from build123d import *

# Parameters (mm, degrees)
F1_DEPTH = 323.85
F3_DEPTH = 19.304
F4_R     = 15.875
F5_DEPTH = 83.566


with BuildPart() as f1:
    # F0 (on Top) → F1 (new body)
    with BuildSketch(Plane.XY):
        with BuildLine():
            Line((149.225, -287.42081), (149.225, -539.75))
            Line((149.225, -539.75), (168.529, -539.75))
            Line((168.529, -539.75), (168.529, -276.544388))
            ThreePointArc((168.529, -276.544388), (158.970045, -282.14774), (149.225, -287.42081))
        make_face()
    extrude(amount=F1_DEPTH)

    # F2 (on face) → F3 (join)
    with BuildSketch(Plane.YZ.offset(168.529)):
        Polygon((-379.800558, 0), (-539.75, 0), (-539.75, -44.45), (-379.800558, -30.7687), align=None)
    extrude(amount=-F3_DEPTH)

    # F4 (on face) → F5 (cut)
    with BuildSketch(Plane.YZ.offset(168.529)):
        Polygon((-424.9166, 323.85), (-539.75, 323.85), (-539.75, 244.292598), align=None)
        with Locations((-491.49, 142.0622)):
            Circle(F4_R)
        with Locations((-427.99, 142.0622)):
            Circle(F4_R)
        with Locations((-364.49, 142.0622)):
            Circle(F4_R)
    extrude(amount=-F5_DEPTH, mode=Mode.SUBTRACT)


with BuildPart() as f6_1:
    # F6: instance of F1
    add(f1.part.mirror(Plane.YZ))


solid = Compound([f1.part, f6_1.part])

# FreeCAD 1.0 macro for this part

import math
import FreeCAD as App
import Part
import Sketcher
Q = App.Units.Quantity

doc = App.newDocument("Part")
body = doc.addObject("PartDesign::Body", "Body")

# Sketch on XY plane
sketch1 = body.newObject("Sketcher::SketchObject", "Sketch")
sketch1.AttachmentSupport = (doc.getObject("XY_Plane"), [""])
sketch1.MapMode = "FlatFace"
sketch1.addGeometry(Part.LineSegment(App.Vector(149, -287, 0), App.Vector(149, -540, 0)), False)
sketch1.addGeometry(Part.LineSegment(App.Vector(149, -540, 0), App.Vector(169, -540, 0)), False)
sketch1.addGeometry(Part.LineSegment(App.Vector(169, -540, 0), App.Vector(169, -277, 0)), False)
sketch1.addGeometry(Part.ArcOfCircle(Part.Circle(App.Vector(0, 0, 0), App.Vector(0, 0, 1), 324), math.radians(-62.56), math.radians(-58.64)), False)
sketch1.addConstraint(Sketcher.Constraint("Coincident", 0, 2, 1, 1))
sketch1.addConstraint(Sketcher.Constraint("Coincident", 1, 2, 2, 1))
sketch1.addConstraint(Sketcher.Constraint("Coincident", 2, 2, 3, 2))
sketch1.addConstraint(Sketcher.Constraint("Coincident", 3, 1, 0, 1))
sketch1.addConstraint(Sketcher.Constraint("Vertical", 0))
sketch1.addConstraint(Sketcher.Constraint("Horizontal", 1))
sketch1.addConstraint(Sketcher.Constraint("Vertical", 2))
sketch1.addConstraint(Sketcher.Constraint("DistanceX", 1, 1, 1, 2, Q("0.76 in")))
sketch1.addConstraint(Sketcher.Constraint("DistanceY", 0, 2, -1, 1, Q("21.25 in")))
sketch1.addConstraint(Sketcher.Constraint("DistanceX", -1, 1, 0, 2, Q("5.875 in")))
sketch1.addConstraint(Sketcher.Constraint("Radius", 3, 323.850307))
sketch1.addConstraint(Sketcher.Constraint("DistanceY", 0, 2, 0, 1, 252.32919))
sketch1.addConstraint(Sketcher.Constraint("DistanceY", 2, 1, 2, 2, 263.205612))
pad1 = body.newObject("PartDesign::Pad", "Pad")
pad1.Profile = sketch1
pad1.Length = Q("12.75 in")

# Sketch on YZ plane
sketch2 = body.newObject("Sketcher::SketchObject", "Sketch001")
sketch2.AttachmentSupport = (doc.getObject("YZ_Plane"), [""])
sketch2.MapMode = "FlatFace"
sketch2.AttachmentOffset = App.Placement(App.Vector(0, 0, 6.635 * 25.4), App.Rotation())
sketch2.addGeometry(Part.LineSegment(App.Vector(-380, 0, 0), App.Vector(-540, 0, 0)), False)
sketch2.addGeometry(Part.LineSegment(App.Vector(-540, 0, 0), App.Vector(-540, -44, 0)), False)
sketch2.addGeometry(Part.LineSegment(App.Vector(-540, -44, 0), App.Vector(-380, -31, 0)), False)
sketch2.addGeometry(Part.LineSegment(App.Vector(-380, -31, 0), App.Vector(-380, 0, 0)), False)
sketch2.addConstraint(Sketcher.Constraint("Coincident", 0, 2, 1, 1))
sketch2.addConstraint(Sketcher.Constraint("Coincident", 1, 2, 2, 1))
sketch2.addConstraint(Sketcher.Constraint("Coincident", 2, 2, 3, 1))
sketch2.addConstraint(Sketcher.Constraint("Coincident", 3, 2, 0, 1))
sketch2.addConstraint(Sketcher.Constraint("Horizontal", 0))
sketch2.addConstraint(Sketcher.Constraint("Vertical", 1))
sketch2.addConstraint(Sketcher.Constraint("Vertical", 3))
sketch2.addConstraint(Sketcher.Constraint("PointOnObject", 0, 2, -1))
sketch2.addConstraint(Sketcher.Constraint("DistanceY", 1, 2, 1, 1, Q("1.75 in")))
sketch2.addConstraint(Sketcher.Constraint("DistanceX", 0, 2, -1, 1, Q("21.25 in")))
sketch2.addConstraint(Sketcher.Constraint("DistanceY", 3, 1, 3, 2, 30.7687))
sketch2.addConstraint(Sketcher.Constraint("DistanceX", 0, 2, 0, 1, 159.949442))
pad2 = body.newObject("PartDesign::Pad", "Pad001")
pad2.Profile = sketch2
pad2.Length = Q("0.76 in")
pad2.Reversed = True

# Sketch on YZ plane
sketch3 = body.newObject("Sketcher::SketchObject", "Sketch002")
sketch3.AttachmentSupport = (doc.getObject("YZ_Plane"), [""])
sketch3.MapMode = "FlatFace"
sketch3.AttachmentOffset = App.Placement(App.Vector(0, 0, 6.635 * 25.4), App.Rotation())
sketch3.addGeometry(Part.LineSegment(App.Vector(-425, 324, 0), App.Vector(-540, 324, 0)), False)
sketch3.addGeometry(Part.LineSegment(App.Vector(-540, 324, 0), App.Vector(-540, 244, 0)), False)
sketch3.addGeometry(Part.LineSegment(App.Vector(-540, 244, 0), App.Vector(-425, 324, 0)), False)
sketch3.addGeometry(Part.Circle(App.Vector(-491, 142, 0), App.Vector(0, 0, 1), 16), False)
sketch3.addGeometry(Part.Circle(App.Vector(-428, 142, 0), App.Vector(0, 0, 1), 16), False)
sketch3.addGeometry(Part.Circle(App.Vector(-364, 142, 0), App.Vector(0, 0, 1), 16), False)
sketch3.addConstraint(Sketcher.Constraint("Coincident", 0, 2, 1, 1))
sketch3.addConstraint(Sketcher.Constraint("Coincident", 1, 2, 2, 1))
sketch3.addConstraint(Sketcher.Constraint("Coincident", 2, 2, 0, 1))
sketch3.addConstraint(Sketcher.Constraint("Horizontal", 0))
sketch3.addConstraint(Sketcher.Constraint("Vertical", 1))
sketch3.addConstraint(Sketcher.Constraint("Equal", 3, 4))
sketch3.addConstraint(Sketcher.Constraint("Equal", 4, 5))
sketch3.addConstraint(Sketcher.Constraint("Horizontal", 3, 3, 4, 3))
sketch3.addConstraint(Sketcher.Constraint("Horizontal", 4, 3, 5, 3))
sketch3.addConstraint(Sketcher.Constraint("Diameter", 3, Q("1.25 in")))
sketch3.addConstraint(Sketcher.Constraint("DistanceX", 3, 3, 5, 3, Q("5 in")))
sketch3.addConstraint(Sketcher.Constraint("Distance", 2, Q("5.5 in")))
sketch3.addConstraint(Sketcher.Constraint("DistanceX", 3, 3, 4, 3, Q("2.5 in")))
sketch3.addConstraint(Sketcher.Constraint("DistanceX", 0, 2, 3, 3, Q("1.9 in")))
sketch3.addConstraint(Sketcher.Constraint("DistanceX", 0, 2, 0, 1, Q("4.521 in")))
sketch3.addConstraint(Sketcher.Constraint("DistanceX", 3, 3, -1, 1, Q("19.35 in")))
sketch3.addConstraint(Sketcher.Constraint("DistanceY", -1, 1, 0, 2, Q("12.75 in")))
sketch3.addConstraint(Sketcher.Constraint("DistanceY", -1, 1, 3, 3, Q("5.593 in")))
pocket1 = body.newObject("PartDesign::Pocket", "Pocket")
pocket1.Profile = sketch3
pocket1.Length = Q("3.29 in")
body2 = doc.addObject("PartDesign::Body", "Body001")
doc.recompute()

mirroring = doc.addObject("Part::Mirroring", "Mirroring")
mirroring.Source = body
mirroring.Base = App.Vector(0, 0, 0)
mirroring.Normal = App.Vector(1, 0, 0)
body2.BaseFeature = mirroring
doc.recompute()
mirroring.Visibility = False

doc.recompute()
